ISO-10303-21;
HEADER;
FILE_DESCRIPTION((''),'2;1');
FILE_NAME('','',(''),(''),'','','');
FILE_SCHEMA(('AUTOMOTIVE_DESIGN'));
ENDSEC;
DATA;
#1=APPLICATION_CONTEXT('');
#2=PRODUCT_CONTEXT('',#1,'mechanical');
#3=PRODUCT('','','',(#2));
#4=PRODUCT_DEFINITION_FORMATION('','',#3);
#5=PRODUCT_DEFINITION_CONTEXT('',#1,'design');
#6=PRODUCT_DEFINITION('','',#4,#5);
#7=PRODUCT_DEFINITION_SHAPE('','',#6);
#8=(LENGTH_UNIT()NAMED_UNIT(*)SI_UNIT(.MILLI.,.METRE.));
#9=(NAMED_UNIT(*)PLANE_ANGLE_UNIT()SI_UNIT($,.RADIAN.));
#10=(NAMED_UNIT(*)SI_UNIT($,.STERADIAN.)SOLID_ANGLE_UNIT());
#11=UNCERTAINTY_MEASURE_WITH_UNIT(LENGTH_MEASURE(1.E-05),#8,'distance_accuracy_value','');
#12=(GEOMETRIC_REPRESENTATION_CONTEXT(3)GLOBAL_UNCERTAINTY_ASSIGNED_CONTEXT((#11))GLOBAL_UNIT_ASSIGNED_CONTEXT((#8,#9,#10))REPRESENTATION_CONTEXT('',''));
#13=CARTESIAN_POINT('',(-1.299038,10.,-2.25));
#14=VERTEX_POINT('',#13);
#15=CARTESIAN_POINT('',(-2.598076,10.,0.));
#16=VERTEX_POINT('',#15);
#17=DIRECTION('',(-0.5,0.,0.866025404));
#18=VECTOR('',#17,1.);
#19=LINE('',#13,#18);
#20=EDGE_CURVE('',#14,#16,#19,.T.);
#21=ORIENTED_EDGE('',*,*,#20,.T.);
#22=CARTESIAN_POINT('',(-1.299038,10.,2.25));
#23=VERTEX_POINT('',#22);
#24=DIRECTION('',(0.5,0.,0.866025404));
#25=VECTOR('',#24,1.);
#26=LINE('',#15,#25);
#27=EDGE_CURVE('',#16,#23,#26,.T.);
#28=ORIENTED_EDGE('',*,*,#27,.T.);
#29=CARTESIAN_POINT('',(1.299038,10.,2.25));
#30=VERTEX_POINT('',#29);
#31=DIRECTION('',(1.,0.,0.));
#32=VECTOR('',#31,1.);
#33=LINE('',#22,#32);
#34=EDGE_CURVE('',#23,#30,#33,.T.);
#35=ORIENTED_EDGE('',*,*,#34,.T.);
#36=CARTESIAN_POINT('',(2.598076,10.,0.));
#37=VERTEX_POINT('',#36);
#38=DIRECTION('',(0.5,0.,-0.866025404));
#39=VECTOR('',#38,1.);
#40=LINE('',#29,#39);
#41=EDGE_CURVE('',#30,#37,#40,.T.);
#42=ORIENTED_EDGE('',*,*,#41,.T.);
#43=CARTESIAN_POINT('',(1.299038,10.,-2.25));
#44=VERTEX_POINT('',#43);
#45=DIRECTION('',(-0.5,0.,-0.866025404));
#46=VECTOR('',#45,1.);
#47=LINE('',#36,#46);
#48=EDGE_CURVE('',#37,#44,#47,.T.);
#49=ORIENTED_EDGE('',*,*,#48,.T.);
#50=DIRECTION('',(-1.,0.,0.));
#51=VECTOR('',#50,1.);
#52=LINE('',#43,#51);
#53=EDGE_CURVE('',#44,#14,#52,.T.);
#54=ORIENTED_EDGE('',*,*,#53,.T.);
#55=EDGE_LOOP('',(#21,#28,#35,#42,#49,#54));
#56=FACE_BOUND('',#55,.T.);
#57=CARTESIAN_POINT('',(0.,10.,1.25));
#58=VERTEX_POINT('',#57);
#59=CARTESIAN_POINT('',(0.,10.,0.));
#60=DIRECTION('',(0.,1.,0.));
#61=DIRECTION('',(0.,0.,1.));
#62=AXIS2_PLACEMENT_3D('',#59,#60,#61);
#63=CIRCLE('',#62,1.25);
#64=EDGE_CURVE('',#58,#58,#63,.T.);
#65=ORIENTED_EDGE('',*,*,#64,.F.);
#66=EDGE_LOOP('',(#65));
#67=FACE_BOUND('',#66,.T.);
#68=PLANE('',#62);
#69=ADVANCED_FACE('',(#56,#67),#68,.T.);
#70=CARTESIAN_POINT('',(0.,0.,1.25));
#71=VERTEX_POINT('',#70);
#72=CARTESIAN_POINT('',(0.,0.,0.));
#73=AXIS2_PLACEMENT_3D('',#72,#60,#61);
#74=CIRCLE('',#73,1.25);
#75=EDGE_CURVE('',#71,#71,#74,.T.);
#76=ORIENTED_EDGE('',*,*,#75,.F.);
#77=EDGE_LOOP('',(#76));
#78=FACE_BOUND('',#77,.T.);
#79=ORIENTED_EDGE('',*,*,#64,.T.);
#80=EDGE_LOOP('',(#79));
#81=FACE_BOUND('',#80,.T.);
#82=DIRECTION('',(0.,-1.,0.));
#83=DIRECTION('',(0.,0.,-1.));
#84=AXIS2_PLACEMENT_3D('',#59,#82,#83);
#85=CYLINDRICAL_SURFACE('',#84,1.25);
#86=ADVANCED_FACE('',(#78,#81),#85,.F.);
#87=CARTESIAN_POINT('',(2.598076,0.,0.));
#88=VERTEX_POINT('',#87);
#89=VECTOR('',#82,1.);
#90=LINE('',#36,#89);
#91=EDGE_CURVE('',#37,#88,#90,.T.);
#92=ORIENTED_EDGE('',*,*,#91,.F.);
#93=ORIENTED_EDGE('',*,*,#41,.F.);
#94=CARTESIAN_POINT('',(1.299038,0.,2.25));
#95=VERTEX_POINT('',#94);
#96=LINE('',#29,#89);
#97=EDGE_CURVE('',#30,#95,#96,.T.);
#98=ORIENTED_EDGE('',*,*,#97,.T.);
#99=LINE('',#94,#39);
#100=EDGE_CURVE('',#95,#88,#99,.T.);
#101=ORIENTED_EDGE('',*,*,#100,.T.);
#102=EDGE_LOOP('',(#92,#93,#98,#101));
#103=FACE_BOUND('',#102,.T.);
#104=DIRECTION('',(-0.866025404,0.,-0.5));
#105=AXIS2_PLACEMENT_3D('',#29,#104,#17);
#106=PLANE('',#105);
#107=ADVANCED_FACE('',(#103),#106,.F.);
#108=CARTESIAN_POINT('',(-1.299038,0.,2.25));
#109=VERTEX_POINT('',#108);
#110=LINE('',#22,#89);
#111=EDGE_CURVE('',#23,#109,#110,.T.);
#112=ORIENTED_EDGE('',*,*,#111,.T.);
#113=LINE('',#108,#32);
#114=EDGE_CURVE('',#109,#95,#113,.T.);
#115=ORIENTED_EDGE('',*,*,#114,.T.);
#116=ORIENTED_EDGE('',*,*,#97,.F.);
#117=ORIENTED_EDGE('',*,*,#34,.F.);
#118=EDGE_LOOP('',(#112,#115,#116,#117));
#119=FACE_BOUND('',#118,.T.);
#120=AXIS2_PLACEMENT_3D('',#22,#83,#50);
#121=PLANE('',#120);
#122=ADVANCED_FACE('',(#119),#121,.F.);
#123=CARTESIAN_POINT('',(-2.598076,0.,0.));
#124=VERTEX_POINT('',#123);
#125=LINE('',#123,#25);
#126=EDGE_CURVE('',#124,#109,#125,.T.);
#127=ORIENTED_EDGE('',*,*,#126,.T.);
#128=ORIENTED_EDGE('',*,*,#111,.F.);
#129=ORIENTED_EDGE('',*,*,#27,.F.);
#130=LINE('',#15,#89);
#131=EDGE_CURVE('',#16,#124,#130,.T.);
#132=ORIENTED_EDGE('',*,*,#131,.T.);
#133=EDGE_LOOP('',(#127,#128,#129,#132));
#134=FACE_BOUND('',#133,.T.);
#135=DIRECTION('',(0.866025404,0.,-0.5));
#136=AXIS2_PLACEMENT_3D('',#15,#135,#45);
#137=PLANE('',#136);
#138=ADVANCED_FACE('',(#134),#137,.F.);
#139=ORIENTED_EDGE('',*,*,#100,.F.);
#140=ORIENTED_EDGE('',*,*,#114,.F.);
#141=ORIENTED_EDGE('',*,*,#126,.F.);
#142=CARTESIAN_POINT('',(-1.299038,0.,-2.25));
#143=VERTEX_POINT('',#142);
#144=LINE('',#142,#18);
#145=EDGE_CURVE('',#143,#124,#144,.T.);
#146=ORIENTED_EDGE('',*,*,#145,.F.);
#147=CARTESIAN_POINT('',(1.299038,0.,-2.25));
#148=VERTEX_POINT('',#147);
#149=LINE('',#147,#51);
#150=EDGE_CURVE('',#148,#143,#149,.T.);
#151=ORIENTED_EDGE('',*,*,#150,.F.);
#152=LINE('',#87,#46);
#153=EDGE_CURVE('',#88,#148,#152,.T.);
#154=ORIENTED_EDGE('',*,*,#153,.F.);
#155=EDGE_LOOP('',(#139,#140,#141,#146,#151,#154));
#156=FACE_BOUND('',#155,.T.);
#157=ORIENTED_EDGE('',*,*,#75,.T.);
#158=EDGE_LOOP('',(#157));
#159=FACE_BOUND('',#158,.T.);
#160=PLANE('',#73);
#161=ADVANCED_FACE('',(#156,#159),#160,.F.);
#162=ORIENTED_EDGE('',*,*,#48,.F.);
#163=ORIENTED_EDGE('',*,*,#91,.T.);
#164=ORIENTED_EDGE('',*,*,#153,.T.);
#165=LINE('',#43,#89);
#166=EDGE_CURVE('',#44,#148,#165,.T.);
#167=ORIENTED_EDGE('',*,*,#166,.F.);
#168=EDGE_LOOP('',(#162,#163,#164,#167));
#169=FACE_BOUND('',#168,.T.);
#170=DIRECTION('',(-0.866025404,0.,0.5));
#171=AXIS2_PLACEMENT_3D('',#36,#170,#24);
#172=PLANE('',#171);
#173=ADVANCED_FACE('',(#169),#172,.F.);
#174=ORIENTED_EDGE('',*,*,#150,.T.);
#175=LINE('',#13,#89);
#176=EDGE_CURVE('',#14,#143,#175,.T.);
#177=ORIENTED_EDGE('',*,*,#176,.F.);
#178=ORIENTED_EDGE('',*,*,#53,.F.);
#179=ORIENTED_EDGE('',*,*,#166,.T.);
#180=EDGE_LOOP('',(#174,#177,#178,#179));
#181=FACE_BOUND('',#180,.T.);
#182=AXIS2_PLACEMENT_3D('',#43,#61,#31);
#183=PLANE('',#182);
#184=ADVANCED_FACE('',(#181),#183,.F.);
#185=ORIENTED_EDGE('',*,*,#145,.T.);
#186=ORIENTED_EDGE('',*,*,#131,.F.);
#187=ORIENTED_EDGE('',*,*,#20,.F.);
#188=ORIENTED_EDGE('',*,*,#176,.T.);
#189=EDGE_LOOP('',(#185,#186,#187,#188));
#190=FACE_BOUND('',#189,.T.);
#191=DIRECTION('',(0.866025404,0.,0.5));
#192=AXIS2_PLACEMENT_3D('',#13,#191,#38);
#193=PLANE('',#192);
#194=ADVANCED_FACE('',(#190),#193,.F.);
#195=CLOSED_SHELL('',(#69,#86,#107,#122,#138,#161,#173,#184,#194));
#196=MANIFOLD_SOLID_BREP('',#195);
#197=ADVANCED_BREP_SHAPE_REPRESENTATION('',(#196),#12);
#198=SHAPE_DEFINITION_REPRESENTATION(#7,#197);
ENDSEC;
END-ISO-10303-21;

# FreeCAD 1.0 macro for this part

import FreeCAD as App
import Part
import Sketcher

V = App.Vector
Q = App.Units.Quantity

doc = App.newDocument("Part")
params = doc.addObject("Spreadsheet::Sheet", "Params")
for row, (alias, value) in enumerate([
    ("sketch1_diameter", "2.5 mm"),
    ("pad1_length", "10 mm"),
], start=1):
    params.set(f"A{row}", alias)
    params.set(f"B{row}", "=" + value)
    params.setAlias(f"B{row}", alias)

body = doc.addObject("PartDesign::Body", "Body")

sketch1 = body.newObject("Sketcher::SketchObject", "Sketch")
sketch1.AttachmentSupport = (doc.getObject("XZ_Plane"), [""])
sketch1.MapMode = "FlatFace"
sketch1.addGeometry(Part.LineSegment(V(1.299038, 2.25, 0), V(2.598076, 0, 0)), False)
sketch1.addGeometry(Part.LineSegment(V(2.598076, 0, 0), V(1.299038, -2.25, 0)), False)
sketch1.addGeometry(Part.LineSegment(V(1.299038, -2.25, 0), V(-1.299038, -2.25, 0)), False)
sketch1.addGeometry(Part.LineSegment(V(-1.299038, -2.25, 0), V(-2.598076, 0, 0)), False)
sketch1.addGeometry(Part.LineSegment(V(-2.598076, 0, 0), V(-1.299038, 2.25, 0)), False)
sketch1.addGeometry(Part.LineSegment(V(-1.299038, 2.25, 0), V(1.299038, 2.25, 0)), False)
sketch1.addGeometry(Part.Circle(V(0, 0, 0), V(0, 0, 1), 1.25), False)
sketch1.addConstraint(Sketcher.Constraint("Coincident", 0, 2, 1, 1))
sketch1.addConstraint(Sketcher.Constraint("Coincident", 1, 2, 2, 1))
sketch1.addConstraint(Sketcher.Constraint("Coincident", 2, 2, 3, 1))
sketch1.addConstraint(Sketcher.Constraint("Coincident", 3, 2, 4, 1))
sketch1.addConstraint(Sketcher.Constraint("Coincident", 4, 2, 5, 1))
sketch1.addConstraint(Sketcher.Constraint("Coincident", 5, 2, 0, 1))
sketch1.addConstraint(Sketcher.Constraint("Horizontal", 2))
sketch1.addConstraint(Sketcher.Constraint("Horizontal", 5))
sketch1.addConstraint(Sketcher.Constraint("Coincident", 6, 3, -1, 1))
sketch1.addConstraint(Sketcher.Constraint("Symmetric", 0, 2, 3, 2, -1, 1))
sketch1.addConstraint(Sketcher.Constraint("Symmetric", 1, 2, 4, 2, -1, 1))
sketch1.addConstraint(Sketcher.Constraint("PointOnObject", 0, 2, -1))
sketch1.addConstraint(Sketcher.Constraint("Parallel", 0, 3))
sketch1.addConstraint(Sketcher.Constraint("Vertical", 2, 2, 4, 2))
sketch1.addConstraint(Sketcher.Constraint("Diameter", 6, Q("2.5 mm")))
sketch1.addConstraint(Sketcher.Constraint("Angle", 0, Q("-60 deg")))
sketch1.addConstraint(Sketcher.Constraint("DistanceY", 2, 2, 4, 2, Q("4.5 mm")))
sketch1.addConstraint(Sketcher.Constraint("DistanceX", 2, 2, 2, 1, Q("2.598076 mm")))
sketch1.setExpression("Constraints[14]", "Params.sketch1_diameter")
pad1 = body.newObject("PartDesign::Pad", "Pad")
pad1.Profile = sketch1
pad1.setExpression("Length", "Params.pad1_length")
pad1.Reversed = True

doc.recompute()
